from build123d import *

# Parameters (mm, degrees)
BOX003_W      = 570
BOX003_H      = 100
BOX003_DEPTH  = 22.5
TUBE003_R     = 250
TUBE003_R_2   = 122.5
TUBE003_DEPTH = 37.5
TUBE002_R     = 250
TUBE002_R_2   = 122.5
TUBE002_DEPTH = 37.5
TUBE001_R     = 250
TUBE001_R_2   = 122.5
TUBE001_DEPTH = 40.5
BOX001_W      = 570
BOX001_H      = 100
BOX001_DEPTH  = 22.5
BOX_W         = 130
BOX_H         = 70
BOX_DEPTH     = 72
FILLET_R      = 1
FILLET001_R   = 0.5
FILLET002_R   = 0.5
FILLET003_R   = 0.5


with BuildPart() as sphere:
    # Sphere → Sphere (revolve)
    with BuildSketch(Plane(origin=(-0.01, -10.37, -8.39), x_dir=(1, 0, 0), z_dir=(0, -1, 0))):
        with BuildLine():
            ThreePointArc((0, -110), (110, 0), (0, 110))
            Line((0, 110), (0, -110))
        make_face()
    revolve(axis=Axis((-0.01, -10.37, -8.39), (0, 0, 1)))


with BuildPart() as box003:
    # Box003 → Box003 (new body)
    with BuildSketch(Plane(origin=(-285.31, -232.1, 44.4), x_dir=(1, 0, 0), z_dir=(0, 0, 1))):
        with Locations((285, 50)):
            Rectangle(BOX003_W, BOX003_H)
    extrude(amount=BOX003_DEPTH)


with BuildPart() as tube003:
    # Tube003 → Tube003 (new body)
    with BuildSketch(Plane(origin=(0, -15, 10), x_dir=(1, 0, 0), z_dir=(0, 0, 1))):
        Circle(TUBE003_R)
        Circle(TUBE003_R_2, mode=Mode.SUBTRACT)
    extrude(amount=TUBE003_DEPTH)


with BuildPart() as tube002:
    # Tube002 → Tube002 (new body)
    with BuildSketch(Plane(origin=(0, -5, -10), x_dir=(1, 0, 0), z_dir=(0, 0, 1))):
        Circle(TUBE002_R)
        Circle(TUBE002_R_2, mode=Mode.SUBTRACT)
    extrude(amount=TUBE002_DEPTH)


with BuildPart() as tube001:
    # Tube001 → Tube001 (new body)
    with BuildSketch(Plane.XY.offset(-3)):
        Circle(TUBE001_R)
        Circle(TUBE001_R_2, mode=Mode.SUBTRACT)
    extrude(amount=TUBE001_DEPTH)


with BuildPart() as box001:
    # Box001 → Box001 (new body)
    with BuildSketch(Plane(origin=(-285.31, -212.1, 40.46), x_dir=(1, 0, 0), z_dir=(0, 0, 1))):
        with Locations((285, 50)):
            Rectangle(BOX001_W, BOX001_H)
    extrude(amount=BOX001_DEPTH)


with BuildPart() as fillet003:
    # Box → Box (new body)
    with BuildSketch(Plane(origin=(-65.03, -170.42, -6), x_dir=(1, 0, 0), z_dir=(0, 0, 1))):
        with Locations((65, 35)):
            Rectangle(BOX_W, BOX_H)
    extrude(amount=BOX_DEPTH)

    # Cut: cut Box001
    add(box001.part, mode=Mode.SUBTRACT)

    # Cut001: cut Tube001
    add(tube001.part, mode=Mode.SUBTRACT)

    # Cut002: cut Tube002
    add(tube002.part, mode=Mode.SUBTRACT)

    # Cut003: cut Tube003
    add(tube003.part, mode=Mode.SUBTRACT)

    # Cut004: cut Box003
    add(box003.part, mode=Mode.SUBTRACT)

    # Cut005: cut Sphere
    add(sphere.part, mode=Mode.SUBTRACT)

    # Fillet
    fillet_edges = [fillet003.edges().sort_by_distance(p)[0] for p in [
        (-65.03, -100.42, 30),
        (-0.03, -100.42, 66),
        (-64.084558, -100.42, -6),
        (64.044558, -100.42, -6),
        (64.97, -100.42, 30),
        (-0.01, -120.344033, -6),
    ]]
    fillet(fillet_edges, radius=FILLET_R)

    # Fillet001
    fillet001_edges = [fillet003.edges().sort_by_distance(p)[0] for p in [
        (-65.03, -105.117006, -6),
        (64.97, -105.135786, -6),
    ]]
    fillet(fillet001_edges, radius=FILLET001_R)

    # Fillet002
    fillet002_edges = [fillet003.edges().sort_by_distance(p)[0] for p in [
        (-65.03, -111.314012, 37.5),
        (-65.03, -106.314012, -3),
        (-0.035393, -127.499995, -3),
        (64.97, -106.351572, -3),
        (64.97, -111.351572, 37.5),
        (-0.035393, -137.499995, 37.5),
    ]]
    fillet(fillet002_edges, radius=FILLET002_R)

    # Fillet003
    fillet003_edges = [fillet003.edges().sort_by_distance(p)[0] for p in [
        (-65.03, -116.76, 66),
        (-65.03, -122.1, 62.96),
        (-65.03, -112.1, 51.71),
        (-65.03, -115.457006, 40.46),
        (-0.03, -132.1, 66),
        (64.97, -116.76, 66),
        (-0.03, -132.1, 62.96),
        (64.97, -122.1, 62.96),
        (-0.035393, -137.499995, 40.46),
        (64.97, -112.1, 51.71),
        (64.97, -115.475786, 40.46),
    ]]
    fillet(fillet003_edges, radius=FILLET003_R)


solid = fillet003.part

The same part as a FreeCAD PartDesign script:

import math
import FreeCAD as App
import Part
import Sketcher
from FreeCAD import Vector
Q = App.Units.Quantity


def edges_at(feature, points):
    """Names of the edges that pass closest to the given points."""
    edges = feature.Shape.Edges
    near = lambda p: min(range(len(edges)), key=lambda i: edges[i].distToShape(Part.Vertex(*p))[0])
    return sorted({f"Edge{near(p) + 1}" for p in points})

doc = App.newDocument("Part")
body = doc.addObject("PartDesign::Body", "Body")

sketch1 = body.newObject("Sketcher::SketchObject", "Sketch")
sketch1.AttachmentSupport = (doc.getObject("XZ_Plane"), [""])
sketch1.MapMode = "FlatFace"
sketch1.AttachmentOffset = App.Placement(Vector(0, 0, 10.37), App.Rotation())
sketch1.addGeometry(Part.ArcOfCircle(Part.Circle(Vector(0, -8, 0), Vector(0, 0, 1), 110), math.radians(-90), math.radians(90)), False)
sketch1.addGeometry(Part.LineSegment(Vector(0, 102, 0), Vector(0, -118, 0)), False)
sketch1.addGeometry(Part.LineSegment(Vector(0, -118, 0), Vector(0, 102, 0)), True)
sketch1.addConstraint(Sketcher.Constraint("Coincident", 0, 1, 1, 2))
sketch1.addConstraint(Sketcher.Constraint("Coincident", 1, 1, 0, 2))
sketch1.addConstraint(Sketcher.Constraint("Vertical", 1))
sketch1.addConstraint(Sketcher.Constraint("Vertical", 2))
sketch1.addConstraint(Sketcher.Constraint("Coincident", 2, 1, 0, 1))
sketch1.addConstraint(Sketcher.Constraint("Equal", 1, 2))
sketch1.addConstraint(Sketcher.Constraint("Radius", 0, Q("110 mm")))
sketch1.addConstraint(Sketcher.Constraint("DistanceX", 0, 3, -1, 1, Q("0.01 mm")))
sketch1.addConstraint(Sketcher.Constraint("DistanceY", 0, 3, -1, 1, Q("8.39 mm")))
sketch1.addConstraint(Sketcher.Constraint("DistanceX", 0, 1, -1, 1, Q("0.01 mm")))
revolution = body.newObject("PartDesign::Revolution", "Revolution")
revolution.Profile = sketch1
revolution.ReferenceAxis = (sketch1, ["Axis0"])
revolution.Angle = 360
body2 = doc.addObject("PartDesign::Body", "Body001")

sketch2 = body2.newObject("Sketcher::SketchObject", "Sketch001")
sketch2.AttachmentSupport = (doc.getObject("XY_Plane001"), [""])
sketch2.MapMode = "FlatFace"
sketch2.AttachmentOffset = App.Placement(Vector(0, 0, 44.4), App.Rotation())
sketch2.addGeometry(Part.LineSegment(Vector(-285, -132, 0), Vector(-285, -232, 0)), False)
sketch2.addGeometry(Part.LineSegment(Vector(-285, -232, 0), Vector(285, -232, 0)), False)
sketch2.addGeometry(Part.LineSegment(Vector(285, -232, 0), Vector(285, -132, 0)), False)
sketch2.addGeometry(Part.LineSegment(Vector(285, -132, 0), Vector(-285, -132, 0)), False)
sketch2.addConstraint(Sketcher.Constraint("Coincident", 0, 2, 1, 1))
sketch2.addConstraint(Sketcher.Constraint("Coincident", 1, 2, 2, 1))
sketch2.addConstraint(Sketcher.Constraint("Coincident", 2, 2, 3, 1))
sketch2.addConstraint(Sketcher.Constraint("Coincident", 3, 2, 0, 1))
sketch2.addConstraint(Sketcher.Constraint("Vertical", 0))
sketch2.addConstraint(Sketcher.Constraint("Horizontal", 1))
sketch2.addConstraint(Sketcher.Constraint("Vertical", 2))
sketch2.addConstraint(Sketcher.Constraint("Horizontal", 3))
sketch2.addConstraint(Sketcher.Constraint("DistanceX", 1, 1, 1, 2, Q("570 mm")))
sketch2.addConstraint(Sketcher.Constraint("DistanceY", 0, 2, 0, 1, Q("100 mm")))
sketch2.addConstraint(Sketcher.Constraint("DistanceY", 0, 2, -1, 1, Q("232.1 mm")))
sketch2.addConstraint(Sketcher.Constraint("DistanceX", 0, 2, -1, 1, Q("285.31 mm")))
pad1 = body2.newObject("PartDesign::Pad", "Pad")
pad1.Profile = sketch2
pad1.Length = 22.5
body3 = doc.addObject("PartDesign::Body", "Body002")

sketch3 = body3.newObject("Sketcher::SketchObject", "Sketch002")
sketch3.AttachmentSupport = (doc.getObject("XY_Plane002"), [""])
sketch3.MapMode = "FlatFace"
sketch3.AttachmentOffset = App.Placement(Vector(0, 0, 10), App.Rotation())
sketch3.addGeometry(Part.Circle(Vector(0, -15, 0), Vector(0, 0, 1), 250), False)
sketch3.addGeometry(Part.Circle(Vector(0, -15, 0), Vector(0, 0, 1), 122), False)
sketch3.addConstraint(Sketcher.Constraint("Coincident", 1, 3, 0, 3))
sketch3.addConstraint(Sketcher.Constraint("PointOnObject", 0, 3, -2))
sketch3.addConstraint(Sketcher.Constraint("Diameter", 0, Q("500 mm")))
sketch3.addConstraint(Sketcher.Constraint("Diameter", 1, Q("245 mm")))
sketch3.addConstraint(Sketcher.Constraint("DistanceY", 0, 3, -1, 1, Q("15 mm")))
pad2 = body3.newObject("PartDesign::Pad", "Pad001")
pad2.Profile = sketch3
pad2.Length = 37.5
body4 = doc.addObject("PartDesign::Body", "Body003")

sketch4 = body4.newObject("Sketcher::SketchObject", "Sketch003")
sketch4.AttachmentSupport = (doc.getObject("XY_Plane003"), [""])
sketch4.MapMode = "FlatFace"
sketch4.AttachmentOffset = App.Placement(Vector(0, 0, -10), App.Rotation())
sketch4.addGeometry(Part.Circle(Vector(0, -5, 0), Vector(0, 0, 1), 250), False)
sketch4.addGeometry(Part.Circle(Vector(0, -5, 0), Vector(0, 0, 1), 122), False)
sketch4.addConstraint(Sketcher.Constraint("Coincident", 1, 3, 0, 3))
sketch4.addConstraint(Sketcher.Constraint("PointOnObject", 0, 3, -2))
sketch4.addConstraint(Sketcher.Constraint("Diameter", 0, Q("500 mm")))
sketch4.addConstraint(Sketcher.Constraint("Diameter", 1, Q("245 mm")))
sketch4.addConstraint(Sketcher.Constraint("DistanceY", 0, 3, -1, 1, Q("5 mm")))
pad3 = body4.newObject("PartDesign::Pad", "Pad002")
pad3.Profile = sketch4
pad3.Length = 37.5
body5 = doc.addObject("PartDesign::Body", "Body004")

sketch5 = body5.newObject("Sketcher::SketchObject", "Sketch004")
sketch5.AttachmentSupport = (doc.getObject("XY_Plane004"), [""])
sketch5.MapMode = "FlatFace"
sketch5.AttachmentOffset = App.Placement(Vector(0, 0, -3), App.Rotation())
sketch5.addGeometry(Part.Circle(Vector(0, 0, 0), Vector(0, 0, 1), 250), False)
sketch5.addGeometry(Part.Circle(Vector(0, 0, 0), Vector(0, 0, 1), 122), False)
sketch5.addConstraint(Sketcher.Constraint("Coincident", 0, 3, -1, 1))
sketch5.addConstraint(Sketcher.Constraint("Coincident", 1, 3, -1, 1))
sketch5.addConstraint(Sketcher.Constraint("Diameter", 0, Q("500 mm")))
sketch5.addConstraint(Sketcher.Constraint("Diameter", 1, Q("245 mm")))
pad4 = body5.newObject("PartDesign::Pad", "Pad003")
pad4.Profile = sketch5
pad4.Length = 40.5
body6 = doc.addObject("PartDesign::Body", "Body005")

sketch6 = body6.newObject("Sketcher::SketchObject", "Sketch005")
sketch6.AttachmentSupport = (doc.getObject("XY_Plane005"), [""])
sketch6.MapMode = "FlatFace"
sketch6.AttachmentOffset = App.Placement(Vector(0, 0, 40.46), App.Rotation())
sketch6.addGeometry(Part.LineSegment(Vector(-285, -112, 0), Vector(-285, -212, 0)), False)
sketch6.addGeometry(Part.LineSegment(Vector(-285, -212, 0), Vector(285, -212, 0)), False)
sketch6.addGeometry(Part.LineSegment(Vector(285, -212, 0), Vector(285, -112, 0)), False)
sketch6.addGeometry(Part.LineSegment(Vector(285, -112, 0), Vector(-285, -112, 0)), False)
sketch6.addConstraint(Sketcher.Constraint("Coincident", 0, 2, 1, 1))
sketch6.addConstraint(Sketcher.Constraint("Coincident", 1, 2, 2, 1))
sketch6.addConstraint(Sketcher.Constraint("Coincident", 2, 2, 3, 1))
sketch6.addConstraint(Sketcher.Constraint("Coincident", 3, 2, 0, 1))
sketch6.addConstraint(Sketcher.Constraint("Vertical", 0))
sketch6.addConstraint(Sketcher.Constraint("Horizontal", 1))
sketch6.addConstraint(Sketcher.Constraint("Vertical", 2))
sketch6.addConstraint(Sketcher.Constraint("Horizontal", 3))
sketch6.addConstraint(Sketcher.Constraint("DistanceX", 1, 1, 1, 2, Q("570 mm")))
sketch6.addConstraint(Sketcher.Constraint("DistanceY", 0, 2, 0, 1, Q("100 mm")))
sketch6.addConstraint(Sketcher.Constraint("DistanceY", 0, 2, -1, 1, Q("212.1 mm")))
sketch6.addConstraint(Sketcher.Constraint("DistanceX", 0, 2, -1, 1, Q("285.31 mm")))
pad5 = body6.newObject("PartDesign::Pad", "Pad004")
pad5.Profile = sketch6
pad5.Length = 22.5
body7 = doc.addObject("PartDesign::Body", "Body006")

sketch7 = body7.newObject("Sketcher::SketchObject", "Sketch006")
sketch7.AttachmentSupport = (doc.getObject("XY_Plane006"), [""])
sketch7.MapMode = "FlatFace"
sketch7.AttachmentOffset = App.Placement(Vector(0, 0, -6), App.Rotation())
sketch7.addGeometry(Part.LineSegment(Vector(-65, -100, 0), Vector(-65, -170, 0)), False)
sketch7.addGeometry(Part.LineSegment(Vector(-65, -170, 0), Vector(65, -170, 0)), False)
sketch7.addGeometry(Part.LineSegment(Vector(65, -170, 0), Vector(65, -100, 0)), False)
sketch7.addGeometry(Part.LineSegment(Vector(65, -100, 0), Vector(-65, -100, 0)), False)
sketch7.addConstraint(Sketcher.Constraint("Coincident", 0, 2, 1, 1))
sketch7.addConstraint(Sketcher.Constraint("Coincident", 1, 2, 2, 1))
sketch7.addConstraint(Sketcher.Constraint("Coincident", 2, 2, 3, 1))
sketch7.addConstraint(Sketcher.Constraint("Coincident", 3, 2, 0, 1))
sketch7.addConstraint(Sketcher.Constraint("Vertical", 0))
sketch7.addConstraint(Sketcher.Constraint("Horizontal", 1))
sketch7.addConstraint(Sketcher.Constraint("Vertical", 2))
sketch7.addConstraint(Sketcher.Constraint("Horizontal", 3))
sketch7.addConstraint(Sketcher.Constraint("DistanceX", 1, 1, 1, 2, Q("130 mm")))
sketch7.addConstraint(Sketcher.Constraint("DistanceY", 0, 2, 0, 1, Q("70 mm")))
sketch7.addConstraint(Sketcher.Constraint("DistanceX", 0, 2, -1, 1, Q("65.03 mm")))
sketch7.addConstraint(Sketcher.Constraint("DistanceY", 0, 2, -1, 1, Q("170.42 mm")))
pad6 = body7.newObject("PartDesign::Pad", "Pad005")
pad6.Profile = sketch7
pad6.Length = 72
doc.recompute()

boolean = body7.newObject("PartDesign::Boolean", "Boolean")
boolean.Type = "Cut"
boolean.addObjects([body6])
doc.recompute()

boolean2 = body7.newObject("PartDesign::Boolean", "Boolean001")
boolean2.Type = "Cut"
boolean2.addObjects([body5])
doc.recompute()

boolean3 = body7.newObject("PartDesign::Boolean", "Boolean002")
boolean3.Type = "Cut"
boolean3.addObjects([body4])
doc.recompute()

boolean4 = body7.newObject("PartDesign::Boolean", "Boolean003")
boolean4.Type = "Cut"
boolean4.addObjects([body3])
doc.recompute()

boolean5 = body7.newObject("PartDesign::Boolean", "Boolean004")
boolean5.Type = "Cut"
boolean5.addObjects([body2])
doc.recompute()

boolean6 = body7.newObject("PartDesign::Boolean", "Boolean005")
boolean6.Type = "Cut"
boolean6.addObjects([body])
doc.recompute()

fillet = body7.newObject("PartDesign::Fillet", "Fillet")
fillet.Base = (boolean6, edges_at(boolean6, [
    (-65.03, -100.42, 30),
    (-0.03, -100.42, 66),
    (-64.085, -100.42, -6),
    (64.045, -100.42, -6),
    (64.97, -100.42, 30),
    (-0.01, -120.344, -6),
]))
fillet.Radius = 1
doc.recompute()

fillet2 = body7.newObject("PartDesign::Fillet", "Fillet001")
fillet2.Base = (fillet, edges_at(fillet, [(-65.03, -105.117, -6), (64.97, -105.136, -6)]))
fillet2.Radius = 0.5
doc.recompute()

fillet3 = body7.newObject("PartDesign::Fillet", "Fillet002")
fillet3.Base = (fillet2, edges_at(fillet2, [
    (-65.03, -111.314, 37.5),
    (-65.03, -106.314, -3),
    (-0.035, -127.5, -3),
    (64.97, -106.352, -3),
    (64.97, -111.352, 37.5),
    (-0.035, -137.5, 37.5),
]))
fillet3.Radius = 0.5
doc.recompute()

fillet4 = body7.newObject("PartDesign::Fillet", "Fillet003")
fillet4.Base = (fillet3, edges_at(fillet3, [
    (-65.03, -116.76, 66),
    (-65.03, -122.1, 62.96),
    (-65.03, -112.1, 51.71),
    (-65.03, -115.457, 40.46),
    (-0.03, -132.1, 66),
    (64.97, -116.76, 66),
    (-0.03, -132.1, 62.96),
    (64.97, -122.1, 62.96),
    (-0.035, -137.5, 40.46),
    (64.97, -112.1, 51.71),
    (64.97, -115.476, 40.46),
]))
fillet4.Radius = 0.5

doc.recompute()
